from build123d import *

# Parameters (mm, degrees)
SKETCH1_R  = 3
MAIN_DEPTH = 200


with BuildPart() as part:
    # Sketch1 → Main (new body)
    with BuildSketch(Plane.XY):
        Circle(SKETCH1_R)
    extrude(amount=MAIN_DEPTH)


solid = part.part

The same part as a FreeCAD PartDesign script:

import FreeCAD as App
import Part
import Sketcher
from FreeCAD import Vector
Q = App.Units.Quantity

doc = App.newDocument("Part")
params = doc.addObject("Spreadsheet::Sheet", "Params")
for row, (alias, value) in enumerate([
    ("sketch1_diameter", "6 mm"),
    ("pad1_length", "200 mm"),
], start=1):
    params.set(f"A{row}", alias)
    params.set(f"B{row}", "=" + value)
    params.setAlias(f"B{row}", alias)

body = doc.addObject("PartDesign::Body", "Body")

# Sketch on XY plane
sketch1 = body.newObject("Sketcher::SketchObject", "Sketch")
sketch1.AttachmentSupport = (doc.getObject("XY_Plane"), [""])
sketch1.MapMode = "FlatFace"
sketch1.addGeometry(Part.Circle(Vector(0, 0, 0), Vector(0, 0, 1), 3), False)
sketch1.addConstraint([
    Sketcher.Constraint("Coincident", 0, 3, -1, 1),
    Sketcher.Constraint("Diameter", 0, Q("6 mm")),
])
sketch1.setExpression("Constraints[1]", "Params.sketch1_diameter")
pad1 = body.newObject("PartDesign::Pad", "Pad")
pad1.Profile = sketch1
pad1.setExpression("Length", "Params.pad1_length")

doc.recompute()
